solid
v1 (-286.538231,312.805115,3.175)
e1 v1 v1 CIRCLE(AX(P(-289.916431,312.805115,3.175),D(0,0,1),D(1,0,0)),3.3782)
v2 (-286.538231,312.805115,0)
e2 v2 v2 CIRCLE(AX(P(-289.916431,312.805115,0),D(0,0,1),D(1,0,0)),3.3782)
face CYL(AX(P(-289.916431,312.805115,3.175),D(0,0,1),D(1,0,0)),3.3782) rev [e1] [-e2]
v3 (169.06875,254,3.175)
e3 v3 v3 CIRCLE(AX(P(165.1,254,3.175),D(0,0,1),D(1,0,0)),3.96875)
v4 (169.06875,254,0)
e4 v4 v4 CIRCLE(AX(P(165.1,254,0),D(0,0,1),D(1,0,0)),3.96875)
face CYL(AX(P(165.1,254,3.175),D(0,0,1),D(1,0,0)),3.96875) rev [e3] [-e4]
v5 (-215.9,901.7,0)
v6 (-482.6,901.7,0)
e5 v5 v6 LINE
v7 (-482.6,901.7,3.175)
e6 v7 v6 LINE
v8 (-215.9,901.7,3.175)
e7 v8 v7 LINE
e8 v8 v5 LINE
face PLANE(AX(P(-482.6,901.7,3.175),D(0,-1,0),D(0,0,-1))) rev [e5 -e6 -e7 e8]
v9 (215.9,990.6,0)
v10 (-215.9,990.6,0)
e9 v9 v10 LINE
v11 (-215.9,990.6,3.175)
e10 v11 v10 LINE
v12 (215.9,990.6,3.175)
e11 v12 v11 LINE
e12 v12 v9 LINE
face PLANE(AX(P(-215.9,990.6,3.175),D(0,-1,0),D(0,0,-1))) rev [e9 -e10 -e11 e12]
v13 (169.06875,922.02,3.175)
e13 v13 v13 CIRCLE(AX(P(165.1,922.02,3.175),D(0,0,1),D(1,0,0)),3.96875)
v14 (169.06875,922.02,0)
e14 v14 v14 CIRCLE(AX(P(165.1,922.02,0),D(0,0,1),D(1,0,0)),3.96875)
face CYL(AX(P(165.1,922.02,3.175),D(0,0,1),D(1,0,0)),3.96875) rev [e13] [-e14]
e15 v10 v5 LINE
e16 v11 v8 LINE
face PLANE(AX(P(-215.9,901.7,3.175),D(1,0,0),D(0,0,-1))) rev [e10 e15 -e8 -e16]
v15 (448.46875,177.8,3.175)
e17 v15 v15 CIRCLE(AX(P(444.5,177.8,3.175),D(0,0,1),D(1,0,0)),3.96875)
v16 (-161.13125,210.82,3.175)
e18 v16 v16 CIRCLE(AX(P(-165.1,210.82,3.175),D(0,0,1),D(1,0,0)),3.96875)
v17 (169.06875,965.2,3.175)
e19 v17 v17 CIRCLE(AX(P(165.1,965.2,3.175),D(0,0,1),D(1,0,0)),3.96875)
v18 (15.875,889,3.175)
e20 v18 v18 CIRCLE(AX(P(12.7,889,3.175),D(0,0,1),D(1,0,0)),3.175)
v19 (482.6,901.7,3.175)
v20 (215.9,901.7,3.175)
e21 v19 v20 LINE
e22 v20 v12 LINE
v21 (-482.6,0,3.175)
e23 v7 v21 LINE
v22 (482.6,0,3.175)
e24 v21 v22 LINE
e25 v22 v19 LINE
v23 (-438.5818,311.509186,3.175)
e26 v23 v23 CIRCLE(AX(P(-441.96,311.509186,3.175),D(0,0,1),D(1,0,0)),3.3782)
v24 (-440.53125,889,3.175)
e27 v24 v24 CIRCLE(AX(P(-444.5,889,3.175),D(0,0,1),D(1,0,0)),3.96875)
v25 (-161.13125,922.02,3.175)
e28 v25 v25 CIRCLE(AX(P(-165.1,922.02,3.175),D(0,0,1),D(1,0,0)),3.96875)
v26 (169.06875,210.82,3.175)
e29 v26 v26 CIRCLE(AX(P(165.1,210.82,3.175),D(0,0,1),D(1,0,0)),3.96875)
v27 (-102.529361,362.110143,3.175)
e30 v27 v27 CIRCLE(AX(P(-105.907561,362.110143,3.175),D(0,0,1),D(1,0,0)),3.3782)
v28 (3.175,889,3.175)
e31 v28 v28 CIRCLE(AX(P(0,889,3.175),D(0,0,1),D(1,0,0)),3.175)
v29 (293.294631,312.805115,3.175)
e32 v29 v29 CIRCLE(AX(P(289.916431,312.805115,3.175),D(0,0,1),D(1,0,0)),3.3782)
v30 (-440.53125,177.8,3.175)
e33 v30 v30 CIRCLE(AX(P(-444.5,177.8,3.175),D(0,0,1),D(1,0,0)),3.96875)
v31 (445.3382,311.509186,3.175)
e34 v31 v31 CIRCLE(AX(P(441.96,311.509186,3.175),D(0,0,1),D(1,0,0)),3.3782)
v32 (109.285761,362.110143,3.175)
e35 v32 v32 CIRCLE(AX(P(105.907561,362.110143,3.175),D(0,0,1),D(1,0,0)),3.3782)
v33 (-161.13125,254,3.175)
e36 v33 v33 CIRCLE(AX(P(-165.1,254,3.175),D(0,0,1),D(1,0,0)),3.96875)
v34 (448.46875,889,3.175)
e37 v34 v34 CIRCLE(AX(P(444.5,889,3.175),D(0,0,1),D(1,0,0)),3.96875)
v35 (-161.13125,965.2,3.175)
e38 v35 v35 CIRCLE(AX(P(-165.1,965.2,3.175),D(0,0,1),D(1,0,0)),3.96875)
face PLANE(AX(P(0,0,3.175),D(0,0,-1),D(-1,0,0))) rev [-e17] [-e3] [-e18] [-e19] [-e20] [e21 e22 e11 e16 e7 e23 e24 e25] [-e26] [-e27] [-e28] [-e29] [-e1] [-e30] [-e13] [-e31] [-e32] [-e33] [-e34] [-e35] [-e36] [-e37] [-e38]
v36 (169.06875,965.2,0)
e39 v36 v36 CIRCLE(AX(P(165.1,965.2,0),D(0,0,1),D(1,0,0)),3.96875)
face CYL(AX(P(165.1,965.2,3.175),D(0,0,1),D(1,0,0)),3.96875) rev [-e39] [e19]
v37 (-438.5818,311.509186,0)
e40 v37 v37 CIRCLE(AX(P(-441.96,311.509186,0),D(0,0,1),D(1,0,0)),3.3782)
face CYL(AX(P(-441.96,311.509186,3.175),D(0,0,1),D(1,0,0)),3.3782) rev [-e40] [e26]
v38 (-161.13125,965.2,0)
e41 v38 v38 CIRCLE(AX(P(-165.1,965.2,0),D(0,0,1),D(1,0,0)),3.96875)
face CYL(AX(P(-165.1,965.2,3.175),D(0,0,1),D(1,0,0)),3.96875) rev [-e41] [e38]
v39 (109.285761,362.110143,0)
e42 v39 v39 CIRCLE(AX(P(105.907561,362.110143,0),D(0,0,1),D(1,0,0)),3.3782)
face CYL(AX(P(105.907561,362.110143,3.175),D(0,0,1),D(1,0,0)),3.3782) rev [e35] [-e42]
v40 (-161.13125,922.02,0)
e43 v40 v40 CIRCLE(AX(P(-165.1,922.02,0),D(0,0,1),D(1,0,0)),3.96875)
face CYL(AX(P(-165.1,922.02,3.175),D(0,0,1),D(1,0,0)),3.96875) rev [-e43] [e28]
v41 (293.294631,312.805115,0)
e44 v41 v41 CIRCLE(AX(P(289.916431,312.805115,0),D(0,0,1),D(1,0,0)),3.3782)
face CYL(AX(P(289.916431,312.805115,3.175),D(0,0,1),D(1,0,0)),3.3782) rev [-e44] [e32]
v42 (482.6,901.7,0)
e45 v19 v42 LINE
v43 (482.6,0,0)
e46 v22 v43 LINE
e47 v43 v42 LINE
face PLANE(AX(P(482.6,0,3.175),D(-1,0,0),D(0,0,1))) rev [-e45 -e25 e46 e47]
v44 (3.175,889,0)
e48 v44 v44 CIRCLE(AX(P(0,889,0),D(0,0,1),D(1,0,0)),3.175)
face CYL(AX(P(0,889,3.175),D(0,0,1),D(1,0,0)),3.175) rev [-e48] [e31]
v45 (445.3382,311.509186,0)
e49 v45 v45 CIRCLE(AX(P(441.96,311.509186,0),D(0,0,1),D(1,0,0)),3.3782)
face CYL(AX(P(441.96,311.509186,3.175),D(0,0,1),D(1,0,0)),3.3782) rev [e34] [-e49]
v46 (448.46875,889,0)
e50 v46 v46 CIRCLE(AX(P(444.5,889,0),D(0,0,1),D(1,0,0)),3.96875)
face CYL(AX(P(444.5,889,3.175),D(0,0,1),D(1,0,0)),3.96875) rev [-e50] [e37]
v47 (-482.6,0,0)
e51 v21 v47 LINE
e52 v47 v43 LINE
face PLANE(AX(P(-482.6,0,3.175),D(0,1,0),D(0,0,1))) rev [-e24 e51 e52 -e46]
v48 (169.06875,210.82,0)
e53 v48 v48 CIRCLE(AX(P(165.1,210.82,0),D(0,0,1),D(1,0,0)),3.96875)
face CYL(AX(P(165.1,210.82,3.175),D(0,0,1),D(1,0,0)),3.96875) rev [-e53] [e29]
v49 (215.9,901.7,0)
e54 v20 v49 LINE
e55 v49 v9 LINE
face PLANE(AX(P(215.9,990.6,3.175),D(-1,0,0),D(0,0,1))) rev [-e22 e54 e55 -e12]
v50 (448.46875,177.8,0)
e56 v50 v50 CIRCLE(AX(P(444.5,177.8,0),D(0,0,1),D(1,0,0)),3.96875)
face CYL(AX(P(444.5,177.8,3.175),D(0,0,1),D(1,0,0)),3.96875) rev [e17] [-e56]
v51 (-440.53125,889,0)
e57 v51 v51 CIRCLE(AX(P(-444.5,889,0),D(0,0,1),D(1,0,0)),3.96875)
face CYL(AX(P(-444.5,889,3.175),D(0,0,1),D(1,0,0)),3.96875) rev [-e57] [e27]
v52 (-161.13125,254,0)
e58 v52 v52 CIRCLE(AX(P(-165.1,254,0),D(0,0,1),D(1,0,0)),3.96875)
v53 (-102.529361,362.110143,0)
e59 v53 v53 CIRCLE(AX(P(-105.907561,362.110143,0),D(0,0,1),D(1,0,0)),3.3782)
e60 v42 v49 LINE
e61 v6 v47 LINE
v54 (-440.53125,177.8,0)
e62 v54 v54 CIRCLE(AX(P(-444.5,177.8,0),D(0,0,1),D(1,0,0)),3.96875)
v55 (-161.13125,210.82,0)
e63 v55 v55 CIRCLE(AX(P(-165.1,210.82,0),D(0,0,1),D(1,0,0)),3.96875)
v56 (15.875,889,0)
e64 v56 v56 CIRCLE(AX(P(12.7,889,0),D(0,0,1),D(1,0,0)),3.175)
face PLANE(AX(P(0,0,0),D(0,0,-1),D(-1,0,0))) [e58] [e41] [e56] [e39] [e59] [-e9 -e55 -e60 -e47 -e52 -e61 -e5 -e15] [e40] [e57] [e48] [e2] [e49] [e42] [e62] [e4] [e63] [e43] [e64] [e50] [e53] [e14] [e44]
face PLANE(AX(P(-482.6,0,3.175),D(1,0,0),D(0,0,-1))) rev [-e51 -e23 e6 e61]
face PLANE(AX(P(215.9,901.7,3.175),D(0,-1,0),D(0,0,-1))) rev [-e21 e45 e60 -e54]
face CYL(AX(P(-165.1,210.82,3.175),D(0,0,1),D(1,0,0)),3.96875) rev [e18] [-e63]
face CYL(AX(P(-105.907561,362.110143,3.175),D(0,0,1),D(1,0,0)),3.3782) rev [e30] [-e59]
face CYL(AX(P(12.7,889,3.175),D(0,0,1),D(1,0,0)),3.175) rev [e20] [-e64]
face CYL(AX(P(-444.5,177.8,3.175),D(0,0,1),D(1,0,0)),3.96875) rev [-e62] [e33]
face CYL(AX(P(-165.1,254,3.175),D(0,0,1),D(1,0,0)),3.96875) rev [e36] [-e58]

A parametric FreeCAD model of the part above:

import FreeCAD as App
import Part
import Sketcher
Q = App.Units.Quantity


def add_polygon(sketch, points):
    """Adds a closed chain of lines whose ends are joined by coincident constraints."""
    first, n = sketch.GeometryCount, len(points)
    for a, b in zip(points, points[1:] + points[:1]):
        sketch.addGeometry(Part.LineSegment(App.Vector(*a, 0), App.Vector(*b, 0)), False)
    for i in range(n):
        sketch.addConstraint(Sketcher.Constraint("Coincident", first + i, 2, first + (i + 1) % n, 1))

doc = App.newDocument("Part")
body = doc.addObject("PartDesign::Body", "Body")

sketch1 = body.newObject("Sketcher::SketchObject", "Sketch")
sketch1.AttachmentSupport = (doc.getObject("XY_Plane"), [""])
sketch1.MapMode = "FlatFace"
add_polygon(sketch1, [(-216, 902), (-483, 902), (-483, 0), (483, 0), (483, 902), (216, 902), (216, 991), (-216, 991)])
sketch1.addConstraint([
    Sketcher.Constraint("Horizontal", 0),
    Sketcher.Constraint("Vertical", 1),
    Sketcher.Constraint("Horizontal", 2),
    Sketcher.Constraint("Vertical", 3),
    Sketcher.Constraint("Horizontal", 4),
    Sketcher.Constraint("Vertical", 5),
    Sketcher.Constraint("Horizontal", 6),
    Sketcher.Constraint("Vertical", 7),
    Sketcher.Constraint("Symmetric", 1, 2, 2, 2, -1, 1),
    Sketcher.Constraint("Symmetric", 4, 2, 7, 2, -2),
    Sketcher.Constraint("DistanceX", 2, 1, 2, 2, Q("38 in")),
    Sketcher.Constraint("DistanceX", 6, 2, 6, 1, Q("17 in")),
    Sketcher.Constraint("DistanceY", 1, 2, 1, 1, Q("35.5 in")),
    Sketcher.Constraint("DistanceY", 5, 1, 5, 2, Q("3.5 in")),
])
pad1 = body.newObject("PartDesign::Pad", "Pad")
pad1.Profile = sketch1
pad1.Length = Q("0.125 in")

sketch2 = body.newObject("Sketcher::SketchObject", "Sketch001")
sketch2.AttachmentSupport = (doc.getObject("XY_Plane"), [""])
sketch2.MapMode = "FlatFace"
sketch2.AttachmentOffset = App.Placement(App.Vector(0, 0, 0.125 * 25.4), App.Rotation())
sketch2.addGeometry([
    Part.Circle(App.Vector(-442, 311.5, 0), App.Vector(0, 0, 1), 3.4),
    Part.Circle(App.Vector(105.9, 362.1, 0), App.Vector(0, 0, 1), 3.4),
    Part.Circle(App.Vector(289.9, 312.8, 0), App.Vector(0, 0, 1), 3.4),
    Part.Circle(App.Vector(-289.9, 312.8, 0), App.Vector(0, 0, 1), 3.4),
    Part.Circle(App.Vector(-105.9, 362.1, 0), App.Vector(0, 0, 1), 3.4),
    Part.Circle(App.Vector(442, 311.5, 0), App.Vector(0, 0, 1), 3.4),
], False)
sketch2.addConstraint([
    Sketcher.Constraint("Equal", 0, 1),
    Sketcher.Constraint("Equal", 1, 2),
    Sketcher.Constraint("Equal", 2, 3),
    Sketcher.Constraint("Equal", 3, 4),
    Sketcher.Constraint("Equal", 4, 5),
    Sketcher.Constraint("Symmetric", 2, 3, 3, 3, -2),
    Sketcher.Constraint("Symmetric", 1, 3, 4, 3, -2),
    Sketcher.Constraint("Symmetric", 0, 3, 5, 3, -2),
    Sketcher.Constraint("Diameter", 0, Q("0.266 in")),
    Sketcher.Constraint("DistanceX", 0, 3, -1, 1, Q("17.4 in")),
    Sketcher.Constraint("DistanceX", -1, 1, 1, 3, Q("105.907561 mm")),
    Sketcher.Constraint("DistanceX", -1, 1, 2, 3, Q("289.916431 mm")),
    Sketcher.Constraint("DistanceY", 2, 3, 1, 3, Q("49.305028 mm")),
    Sketcher.Constraint("DistanceY", 0, 3, 2, 3, Q("1.295929 mm")),
    Sketcher.Constraint("DistanceY", -1, 1, 0, 3, Q("311.509186 mm")),
])
doc.recompute()
hole = body.newObject("PartDesign::Hole", "Hole")
hole.Profile = sketch2
hole.ThreadType = "None"
hole.Diameter = Q("0.266 in")
hole.DepthType = "ThroughAll"

sketch3 = body.newObject("Sketcher::SketchObject", "Sketch002")
sketch3.AttachmentSupport = (doc.getObject("XY_Plane"), [""])
sketch3.MapMode = "FlatFace"
sketch3.AttachmentOffset = App.Placement(App.Vector(0, 0, 0.125 * 25.4), App.Rotation())
sketch3.addGeometry([
    Part.Circle(App.Vector(-165.1, 922, 0), App.Vector(0, 0, 1), 4),
    Part.Circle(App.Vector(-165.1, 965.2, 0), App.Vector(0, 0, 1), 4),
    Part.Circle(App.Vector(165.1, 965.2, 0), App.Vector(0, 0, 1), 4),
    Part.Circle(App.Vector(165.1, 922, 0), App.Vector(0, 0, 1), 4),
    Part.Circle(App.Vector(-165.1, 210.8, 0), App.Vector(0, 0, 1), 4),
    Part.Circle(App.Vector(-165.1, 254, 0), App.Vector(0, 0, 1), 4),
    Part.Circle(App.Vector(165.1, 254, 0), App.Vector(0, 0, 1), 4),
    Part.Circle(App.Vector(165.1, 210.8, 0), App.Vector(0, 0, 1), 4),
    Part.Circle(App.Vector(-444.5, 177.8, 0), App.Vector(0, 0, 1), 4),
    Part.Circle(App.Vector(444.5, 177.8, 0), App.Vector(0, 0, 1), 4),
    Part.Circle(App.Vector(-444.5, 889, 0), App.Vector(0, 0, 1), 4),
    Part.Circle(App.Vector(444.5, 889, 0), App.Vector(0, 0, 1), 4),
], False)
sketch3.addConstraint([
    Sketcher.Constraint("Equal", 0, 1),
    Sketcher.Constraint("Equal", 1, 2),
    Sketcher.Constraint("Equal", 2, 3),
    Sketcher.Constraint("Equal", 3, 4),
    Sketcher.Constraint("Equal", 4, 5),
    Sketcher.Constraint("Equal", 5, 6),
    Sketcher.Constraint("Equal", 6, 7),
    Sketcher.Constraint("Equal", 7, 8),
    Sketcher.Constraint("Equal", 8, 9),
    Sketcher.Constraint("Equal", 9, 10),
    Sketcher.Constraint("Equal", 10, 11),
    Sketcher.Constraint("Symmetric", 1, 3, 2, 3, -2),
    Sketcher.Constraint("Symmetric", 0, 3, 3, 3, -2),
    Sketcher.Constraint("Symmetric", 5, 3, 6, 3, -2),
    Sketcher.Constraint("Symmetric", 4, 3, 7, 3, -2),
    Sketcher.Constraint("Symmetric", 8, 3, 9, 3, -2),
    Sketcher.Constraint("Symmetric", 10, 3, 11, 3, -2),
    Sketcher.Constraint("Vertical", 0, 3, 1, 3),
    Sketcher.Constraint("Vertical", 1, 3, 4, 3),
    Sketcher.Constraint("Vertical", 4, 3, 5, 3),
    Sketcher.Constraint("Vertical", 8, 3, 10, 3),
    Sketcher.Constraint("Diameter", 0, Q("0.3125 in")),
    Sketcher.Constraint("DistanceY", -1, 1, 1, 3, Q("38 in")),
    Sketcher.Constraint("DistanceY", -1, 1, 5, 3, Q("10 in")),
    Sketcher.Constraint("DistanceY", -1, 1, 8, 3, Q("7 in")),
    Sketcher.Constraint("DistanceY", -1, 1, 10, 3, Q("35 in")),
    Sketcher.Constraint("DistanceX", 1, 3, 2, 3, Q("13 in")),
    Sketcher.Constraint("DistanceY", 4, 3, 0, 3, Q("28 in")),
    Sketcher.Constraint("DistanceX", 8, 3, 4, 3, Q("11 in")),
    Sketcher.Constraint("DistanceY", -1, 1, 0, 3, Q("36.3 in")),
])
doc.recompute()
hole2 = body.newObject("PartDesign::Hole", "Hole001")
hole2.Profile = sketch3
hole2.ThreadType = "None"
hole2.Diameter = Q("0.3125 in")
hole2.DepthType = "ThroughAll"

sketch4 = body.newObject("Sketcher::SketchObject", "Sketch003")
sketch4.AttachmentSupport = (doc.getObject("XY_Plane"), [""])
sketch4.MapMode = "FlatFace"
sketch4.AttachmentOffset = App.Placement(App.Vector(0, 0, 0.125 * 25.4), App.Rotation())
sketch4.addGeometry([
    Part.Circle(App.Vector(0, 889, 0), App.Vector(0, 0, 1), 3.2),
    Part.Circle(App.Vector(12.7, 889, 0), App.Vector(0, 0, 1), 3.2),
], False)
sketch4.addConstraint([
    Sketcher.Constraint("Equal", 0, 1),
    Sketcher.Constraint("PointOnObject", 0, 3, -2),
    Sketcher.Constraint("Horizontal", 0, 3, 1, 3),
    Sketcher.Constraint("Diameter", 0, Q("0.25 in")),
    Sketcher.Constraint("DistanceY", -1, 1, 0, 3, Q("35 in")),
    Sketcher.Constraint("DistanceX", -1, 1, 1, 3, Q("0.5 in")),
])
doc.recompute()
hole3 = body.newObject("PartDesign::Hole", "Hole002")
hole3.Profile = sketch4
hole3.ThreadType = "None"
hole3.Diameter = Q("0.25 in")
hole3.DepthType = "ThroughAll"

doc.recompute()
